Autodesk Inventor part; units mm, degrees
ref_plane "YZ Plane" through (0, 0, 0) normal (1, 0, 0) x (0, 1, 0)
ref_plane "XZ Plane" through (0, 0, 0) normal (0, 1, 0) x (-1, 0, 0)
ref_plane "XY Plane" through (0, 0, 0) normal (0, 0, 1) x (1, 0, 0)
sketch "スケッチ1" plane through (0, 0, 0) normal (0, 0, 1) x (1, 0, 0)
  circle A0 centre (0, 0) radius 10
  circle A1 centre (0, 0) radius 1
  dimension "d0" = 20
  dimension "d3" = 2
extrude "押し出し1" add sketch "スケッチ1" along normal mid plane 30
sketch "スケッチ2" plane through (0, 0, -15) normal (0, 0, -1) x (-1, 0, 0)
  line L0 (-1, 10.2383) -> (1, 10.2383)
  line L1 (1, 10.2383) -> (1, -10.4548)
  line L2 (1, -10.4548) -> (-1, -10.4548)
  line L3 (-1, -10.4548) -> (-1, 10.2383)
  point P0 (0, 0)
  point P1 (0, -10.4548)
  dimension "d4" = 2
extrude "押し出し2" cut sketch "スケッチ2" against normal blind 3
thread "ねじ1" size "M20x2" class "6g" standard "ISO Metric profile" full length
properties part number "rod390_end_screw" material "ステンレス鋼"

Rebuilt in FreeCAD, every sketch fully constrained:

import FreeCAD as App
import Part
import Sketcher

V = App.Vector
Q = App.Units.Quantity

doc = App.newDocument("Part")
body = doc.addObject("PartDesign::Body", "Body")

# Sketch on XY plane
sketch1 = body.newObject("Sketcher::SketchObject", "Sketch")
sketch1.AttachmentSupport = (doc.getObject("XY_Plane"), [""])
sketch1.MapMode = "FlatFace"
sketch1.addGeometry([
    Part.Circle(V(0, 0, 0), V(0, 0, 1), 10),
    Part.Circle(V(0, 0, 0), V(0, 0, 1), 1),
], False)
sketch1.addConstraint([
    Sketcher.Constraint("Coincident", 0, 3, -1, 1),
    Sketcher.Constraint("Coincident", 1, 3, -1, 1),
    Sketcher.Constraint("Diameter", 0, Q("20 mm")),
    Sketcher.Constraint("Diameter", 1, Q("2 mm")),
])
pad1 = body.newObject("PartDesign::Pad", "Pad")
pad1.Profile = sketch1
pad1.Length = 30
pad1.Midplane = True

# Sketch on XY plane
sketch2 = body.newObject("Sketcher::SketchObject", "Sketch001")
sketch2.AttachmentSupport = (doc.getObject("XY_Plane"), [""])
sketch2.MapMode = "FlatFace"
sketch2.AttachmentOffset = App.Placement(V(0, 0, -15), App.Rotation())
sketch2.addGeometry([
    Part.LineSegment(V(-1, 10.2383, 0), V(1, 10.2383, 0)),
    Part.LineSegment(V(1, 10.2383, 0), V(1, -10.4548, 0)),
    Part.LineSegment(V(1, -10.4548, 0), V(-1, -10.4548, 0)),
    Part.LineSegment(V(-1, -10.4548, 0), V(-1, 10.2383, 0)),
], False)
sketch2.addConstraint([
    Sketcher.Constraint("Coincident", 0, 2, 1, 1),
    Sketcher.Constraint("Coincident", 1, 2, 2, 1),
    Sketcher.Constraint("Coincident", 2, 2, 3, 1),
    Sketcher.Constraint("Coincident", 3, 2, 0, 1),
    Sketcher.Constraint("Horizontal", 0),
    Sketcher.Constraint("Vertical", 1),
    Sketcher.Constraint("Horizontal", 2),
    Sketcher.Constraint("Vertical", 3),
    Sketcher.Constraint("DistanceX", 0, 1, 0, 2, Q("2 mm")),
    Sketcher.Constraint("DistanceX", -1, 1, 0, 2, Q("1 mm")),
    Sketcher.Constraint("DistanceY", 1, 2, 1, 1, Q("20.693 mm")),
    Sketcher.Constraint("DistanceY", -1, 1, 0, 2, Q("10.2383 mm")),
])
pocket1 = body.newObject("PartDesign::Pocket", "Pocket")
pocket1.Profile = sketch2
pocket1.Length = 3
pocket1.Reversed = True

doc.recompute()
